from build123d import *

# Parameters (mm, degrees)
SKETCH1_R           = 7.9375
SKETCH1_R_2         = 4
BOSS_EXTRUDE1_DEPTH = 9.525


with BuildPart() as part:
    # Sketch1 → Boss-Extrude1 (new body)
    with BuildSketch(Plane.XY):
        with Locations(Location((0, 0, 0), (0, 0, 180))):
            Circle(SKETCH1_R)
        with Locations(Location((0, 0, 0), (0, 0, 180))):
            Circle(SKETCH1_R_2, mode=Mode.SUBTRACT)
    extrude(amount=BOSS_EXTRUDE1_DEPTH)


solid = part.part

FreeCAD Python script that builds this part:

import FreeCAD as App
import Part
import Sketcher
Q = App.Units.Quantity

doc = App.newDocument("Part")
params = doc.addObject("Spreadsheet::Sheet", "Params")
for row, (alias, value) in enumerate([
    ("sketch1_diameter", "0.625 in"),
    ("pad1_length", "0.375 in"),
], start=1):
    params.set(f"A{row}", alias)
    params.set(f"B{row}", "=" + value)
    params.setAlias(f"B{row}", alias)

body = doc.addObject("PartDesign::Body", "Body")

# Sketch on XY plane
sketch1 = body.newObject("Sketcher::SketchObject", "Sketch")
sketch1.AttachmentSupport = (doc.getObject("XY_Plane"), [""])
sketch1.MapMode = "FlatFace"
sketch1.addGeometry(Part.Circle(App.Vector(0, 0, 0), App.Vector(0, 0, 1), 7.9), False)
sketch1.addGeometry(Part.Circle(App.Vector(0, 0, 0), App.Vector(0, 0, 1), 4), False)
sketch1.addConstraint(Sketcher.Constraint("Coincident", 0, 3, -1, 1))
sketch1.addConstraint(Sketcher.Constraint("Coincident", 1, 3, -1, 1))
sketch1.addConstraint(Sketcher.Constraint("Diameter", 0, Q("0.625 in")))
sketch1.addConstraint(Sketcher.Constraint("Diameter", 1, Q("8 mm")))
sketch1.setExpression("Constraints[2]", "Params.sketch1_diameter")
pad1 = body.newObject("PartDesign::Pad", "Pad")
pad1.Profile = sketch1
pad1.setExpression("Length", "Params.pad1_length")

doc.recompute()
